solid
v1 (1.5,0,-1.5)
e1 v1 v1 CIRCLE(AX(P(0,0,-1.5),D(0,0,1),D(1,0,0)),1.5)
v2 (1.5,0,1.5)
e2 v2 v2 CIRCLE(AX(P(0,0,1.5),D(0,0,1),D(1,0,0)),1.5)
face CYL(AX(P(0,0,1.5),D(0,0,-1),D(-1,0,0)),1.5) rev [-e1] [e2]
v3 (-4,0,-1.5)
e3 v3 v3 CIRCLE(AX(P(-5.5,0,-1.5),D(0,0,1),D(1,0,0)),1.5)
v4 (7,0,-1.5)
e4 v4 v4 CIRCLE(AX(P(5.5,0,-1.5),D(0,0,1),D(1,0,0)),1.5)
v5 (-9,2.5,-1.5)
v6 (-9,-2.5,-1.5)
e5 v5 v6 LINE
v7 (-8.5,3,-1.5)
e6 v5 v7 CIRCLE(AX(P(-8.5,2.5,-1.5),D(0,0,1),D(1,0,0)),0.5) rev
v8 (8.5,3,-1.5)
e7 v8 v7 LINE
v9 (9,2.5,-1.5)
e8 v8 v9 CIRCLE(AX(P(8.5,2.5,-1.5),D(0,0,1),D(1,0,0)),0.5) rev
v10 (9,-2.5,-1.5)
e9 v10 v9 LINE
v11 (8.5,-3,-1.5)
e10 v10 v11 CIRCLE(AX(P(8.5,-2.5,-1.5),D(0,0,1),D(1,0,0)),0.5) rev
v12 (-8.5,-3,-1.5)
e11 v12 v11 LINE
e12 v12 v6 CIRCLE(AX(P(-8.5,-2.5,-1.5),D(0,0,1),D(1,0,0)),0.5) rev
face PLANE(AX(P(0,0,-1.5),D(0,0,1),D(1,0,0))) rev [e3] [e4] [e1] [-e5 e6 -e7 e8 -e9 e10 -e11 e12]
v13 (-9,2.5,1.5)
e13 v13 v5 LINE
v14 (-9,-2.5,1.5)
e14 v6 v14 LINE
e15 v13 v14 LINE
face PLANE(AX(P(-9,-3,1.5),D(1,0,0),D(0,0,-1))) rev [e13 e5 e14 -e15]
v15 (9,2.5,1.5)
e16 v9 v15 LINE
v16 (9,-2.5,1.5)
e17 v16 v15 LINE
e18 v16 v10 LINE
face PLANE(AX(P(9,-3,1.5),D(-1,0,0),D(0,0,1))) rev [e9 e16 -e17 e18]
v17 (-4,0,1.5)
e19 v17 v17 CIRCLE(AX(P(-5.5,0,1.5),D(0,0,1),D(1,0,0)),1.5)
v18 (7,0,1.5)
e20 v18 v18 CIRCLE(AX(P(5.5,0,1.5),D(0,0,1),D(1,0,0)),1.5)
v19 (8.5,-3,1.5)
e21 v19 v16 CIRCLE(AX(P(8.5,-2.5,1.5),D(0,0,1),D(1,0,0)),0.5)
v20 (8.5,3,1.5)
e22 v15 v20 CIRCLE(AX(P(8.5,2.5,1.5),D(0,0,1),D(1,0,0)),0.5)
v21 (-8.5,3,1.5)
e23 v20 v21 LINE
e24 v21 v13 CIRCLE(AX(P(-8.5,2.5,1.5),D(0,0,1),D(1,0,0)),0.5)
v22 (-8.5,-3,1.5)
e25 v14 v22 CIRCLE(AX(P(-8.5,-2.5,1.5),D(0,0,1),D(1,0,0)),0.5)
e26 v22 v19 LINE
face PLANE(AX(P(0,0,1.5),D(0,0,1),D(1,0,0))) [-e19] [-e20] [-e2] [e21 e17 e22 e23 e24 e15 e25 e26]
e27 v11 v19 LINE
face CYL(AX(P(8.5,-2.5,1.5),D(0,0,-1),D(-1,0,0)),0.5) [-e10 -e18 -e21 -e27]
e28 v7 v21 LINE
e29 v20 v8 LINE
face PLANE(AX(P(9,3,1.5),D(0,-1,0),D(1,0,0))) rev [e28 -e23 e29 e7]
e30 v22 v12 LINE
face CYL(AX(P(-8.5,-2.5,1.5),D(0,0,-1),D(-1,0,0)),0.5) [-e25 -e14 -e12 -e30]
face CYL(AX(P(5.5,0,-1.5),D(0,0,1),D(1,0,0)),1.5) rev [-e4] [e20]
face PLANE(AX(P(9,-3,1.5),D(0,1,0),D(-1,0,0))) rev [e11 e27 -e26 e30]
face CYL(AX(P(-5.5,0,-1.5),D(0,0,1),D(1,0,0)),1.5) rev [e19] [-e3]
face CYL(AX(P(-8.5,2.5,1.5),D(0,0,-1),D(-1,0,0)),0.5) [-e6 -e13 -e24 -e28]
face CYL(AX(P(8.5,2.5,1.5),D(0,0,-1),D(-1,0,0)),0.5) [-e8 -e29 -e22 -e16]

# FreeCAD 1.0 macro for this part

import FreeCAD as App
import Part
import Sketcher
Q = App.Units.Quantity


def edges_at(feature, points):
    """Names of the edges that pass closest to the given points."""
    edges = feature.Shape.Edges
    near = lambda p: min(range(len(edges)), key=lambda i: edges[i].distToShape(Part.Vertex(*p))[0])
    return sorted({f"Edge{near(p) + 1}" for p in points})

doc = App.newDocument("Part")
body = doc.addObject("PartDesign::Body", "Body")

# Sketch on XY plane
sketch1 = body.newObject("Sketcher::SketchObject", "Sketch")
sketch1.AttachmentSupport = (doc.getObject("XY_Plane"), [""])
sketch1.MapMode = "FlatFace"
sketch1.addGeometry([
    Part.LineSegment(App.Vector(-9, 3, 0), App.Vector(-9, -3, 0)),  # 0
    Part.LineSegment(App.Vector(-9, -3, 0), App.Vector(9, -3, 0)),  # 1
    Part.LineSegment(App.Vector(9, -3, 0), App.Vector(9, 3, 0)),  # 2
    Part.LineSegment(App.Vector(9, 3, 0), App.Vector(-9, 3, 0)),  # 3
    Part.Circle(App.Vector(0, 0, 0), App.Vector(0, 0, 1), 1.5),  # 4
], False)
sketch1.addConstraint([
    Sketcher.Constraint("Coincident", 0, 2, 1, 1),
    Sketcher.Constraint("Coincident", 1, 2, 2, 1),
    Sketcher.Constraint("Coincident", 2, 2, 3, 1),
    Sketcher.Constraint("Coincident", 3, 2, 0, 1),
    Sketcher.Constraint("Vertical", 0),
    Sketcher.Constraint("Horizontal", 1),
    Sketcher.Constraint("Vertical", 2),
    Sketcher.Constraint("Horizontal", 3),
    Sketcher.Constraint("Coincident", 4, 3, -1, 1),
    Sketcher.Constraint("Symmetric", 0, 2, 2, 2, -1, 1),
    Sketcher.Constraint("Diameter", 4, Q("3 mm")),
    Sketcher.Constraint("DistanceX", 1, 1, 1, 2, Q("18 mm")),
    Sketcher.Constraint("DistanceY", 0, 2, 0, 1, Q("6 mm")),
])
pad1 = body.newObject("PartDesign::Pad", "Pad")
pad1.Profile = sketch1
pad1.Length = 3
pad1.Midplane = True

# Sketch on XY plane
sketch2 = body.newObject("Sketcher::SketchObject", "Sketch001")
sketch2.AttachmentSupport = (doc.getObject("XY_Plane"), [""])
sketch2.MapMode = "FlatFace"
sketch2.AttachmentOffset = App.Placement(App.Vector(0, 0, 1.5), App.Rotation())
sketch2.addGeometry([
    Part.Circle(App.Vector(-5.5, 0, 0), App.Vector(0, 0, 1), 1.5),
    Part.Circle(App.Vector(5.5, 0, 0), App.Vector(0, 0, 1), 1.5),
], False)
sketch2.addConstraint([
    Sketcher.Constraint("Equal", 0, 1),
    Sketcher.Constraint("Symmetric", 0, 3, 1, 3, -1, 1),
    Sketcher.Constraint("PointOnObject", 0, 3, -1),
    Sketcher.Constraint("Diameter", 0, Q("3 mm")),
    Sketcher.Constraint("DistanceX", 0, 3, 1, 3, Q("11 mm")),
])
pocket1 = body.newObject("PartDesign::Pocket", "Pocket")
pocket1.Profile = sketch2
pocket1.Type = "ThroughAll"
doc.recompute()

fillet = body.newObject("PartDesign::Fillet", "Fillet")
fillet.Base = (pocket1, edges_at(pocket1, [
    (-9, 3, 0),
    (9, 3, 0),
    (9, -3, 0),
    (-9, -3, 0),
]))
fillet.Radius = 0.5

doc.recompute()
